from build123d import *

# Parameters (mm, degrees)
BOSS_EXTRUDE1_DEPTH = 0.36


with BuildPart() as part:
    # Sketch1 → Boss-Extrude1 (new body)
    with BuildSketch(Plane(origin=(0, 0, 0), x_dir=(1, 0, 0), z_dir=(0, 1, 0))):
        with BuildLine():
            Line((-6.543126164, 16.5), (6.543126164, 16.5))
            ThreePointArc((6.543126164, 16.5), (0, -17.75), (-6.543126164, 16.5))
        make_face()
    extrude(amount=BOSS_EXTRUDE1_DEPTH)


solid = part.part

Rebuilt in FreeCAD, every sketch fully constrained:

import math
import FreeCAD as App
import Part
import Sketcher

doc = App.newDocument("Part")
body = doc.addObject("PartDesign::Body", "Body")

# Sketch on XZ plane
sketch1 = body.newObject("Sketcher::SketchObject", "Sketch")
sketch1.AttachmentSupport = (doc.getObject("XZ_Plane"), [""])
sketch1.MapMode = "FlatFace"
sketch1.addGeometry([
    Part.LineSegment(App.Vector(7, -16, 0), App.Vector(-7, -16, 0)),
    Part.ArcOfCircle(Part.Circle(App.Vector(0, 0, 0), App.Vector(0, 0, 1), 18), math.radians(-68), math.radians(248)),
], False)
sketch1.addConstraint([
    Sketcher.Constraint("Coincident", 0, 1, 1, 1),
    Sketcher.Constraint("Coincident", 1, 2, 0, 2),
    Sketcher.Constraint("Horizontal", 0),
    Sketcher.Constraint("Coincident", 1, 3, -1, 1),
    Sketcher.Constraint("Radius", 1, 17.75),
    Sketcher.Constraint("DistanceY", 0, 1, -1, 1, 16.5),
])
pad1 = body.newObject("PartDesign::Pad", "Pad")
pad1.Profile = sketch1
pad1.Length = 0.36
pad1.Reversed = True

doc.recompute()
